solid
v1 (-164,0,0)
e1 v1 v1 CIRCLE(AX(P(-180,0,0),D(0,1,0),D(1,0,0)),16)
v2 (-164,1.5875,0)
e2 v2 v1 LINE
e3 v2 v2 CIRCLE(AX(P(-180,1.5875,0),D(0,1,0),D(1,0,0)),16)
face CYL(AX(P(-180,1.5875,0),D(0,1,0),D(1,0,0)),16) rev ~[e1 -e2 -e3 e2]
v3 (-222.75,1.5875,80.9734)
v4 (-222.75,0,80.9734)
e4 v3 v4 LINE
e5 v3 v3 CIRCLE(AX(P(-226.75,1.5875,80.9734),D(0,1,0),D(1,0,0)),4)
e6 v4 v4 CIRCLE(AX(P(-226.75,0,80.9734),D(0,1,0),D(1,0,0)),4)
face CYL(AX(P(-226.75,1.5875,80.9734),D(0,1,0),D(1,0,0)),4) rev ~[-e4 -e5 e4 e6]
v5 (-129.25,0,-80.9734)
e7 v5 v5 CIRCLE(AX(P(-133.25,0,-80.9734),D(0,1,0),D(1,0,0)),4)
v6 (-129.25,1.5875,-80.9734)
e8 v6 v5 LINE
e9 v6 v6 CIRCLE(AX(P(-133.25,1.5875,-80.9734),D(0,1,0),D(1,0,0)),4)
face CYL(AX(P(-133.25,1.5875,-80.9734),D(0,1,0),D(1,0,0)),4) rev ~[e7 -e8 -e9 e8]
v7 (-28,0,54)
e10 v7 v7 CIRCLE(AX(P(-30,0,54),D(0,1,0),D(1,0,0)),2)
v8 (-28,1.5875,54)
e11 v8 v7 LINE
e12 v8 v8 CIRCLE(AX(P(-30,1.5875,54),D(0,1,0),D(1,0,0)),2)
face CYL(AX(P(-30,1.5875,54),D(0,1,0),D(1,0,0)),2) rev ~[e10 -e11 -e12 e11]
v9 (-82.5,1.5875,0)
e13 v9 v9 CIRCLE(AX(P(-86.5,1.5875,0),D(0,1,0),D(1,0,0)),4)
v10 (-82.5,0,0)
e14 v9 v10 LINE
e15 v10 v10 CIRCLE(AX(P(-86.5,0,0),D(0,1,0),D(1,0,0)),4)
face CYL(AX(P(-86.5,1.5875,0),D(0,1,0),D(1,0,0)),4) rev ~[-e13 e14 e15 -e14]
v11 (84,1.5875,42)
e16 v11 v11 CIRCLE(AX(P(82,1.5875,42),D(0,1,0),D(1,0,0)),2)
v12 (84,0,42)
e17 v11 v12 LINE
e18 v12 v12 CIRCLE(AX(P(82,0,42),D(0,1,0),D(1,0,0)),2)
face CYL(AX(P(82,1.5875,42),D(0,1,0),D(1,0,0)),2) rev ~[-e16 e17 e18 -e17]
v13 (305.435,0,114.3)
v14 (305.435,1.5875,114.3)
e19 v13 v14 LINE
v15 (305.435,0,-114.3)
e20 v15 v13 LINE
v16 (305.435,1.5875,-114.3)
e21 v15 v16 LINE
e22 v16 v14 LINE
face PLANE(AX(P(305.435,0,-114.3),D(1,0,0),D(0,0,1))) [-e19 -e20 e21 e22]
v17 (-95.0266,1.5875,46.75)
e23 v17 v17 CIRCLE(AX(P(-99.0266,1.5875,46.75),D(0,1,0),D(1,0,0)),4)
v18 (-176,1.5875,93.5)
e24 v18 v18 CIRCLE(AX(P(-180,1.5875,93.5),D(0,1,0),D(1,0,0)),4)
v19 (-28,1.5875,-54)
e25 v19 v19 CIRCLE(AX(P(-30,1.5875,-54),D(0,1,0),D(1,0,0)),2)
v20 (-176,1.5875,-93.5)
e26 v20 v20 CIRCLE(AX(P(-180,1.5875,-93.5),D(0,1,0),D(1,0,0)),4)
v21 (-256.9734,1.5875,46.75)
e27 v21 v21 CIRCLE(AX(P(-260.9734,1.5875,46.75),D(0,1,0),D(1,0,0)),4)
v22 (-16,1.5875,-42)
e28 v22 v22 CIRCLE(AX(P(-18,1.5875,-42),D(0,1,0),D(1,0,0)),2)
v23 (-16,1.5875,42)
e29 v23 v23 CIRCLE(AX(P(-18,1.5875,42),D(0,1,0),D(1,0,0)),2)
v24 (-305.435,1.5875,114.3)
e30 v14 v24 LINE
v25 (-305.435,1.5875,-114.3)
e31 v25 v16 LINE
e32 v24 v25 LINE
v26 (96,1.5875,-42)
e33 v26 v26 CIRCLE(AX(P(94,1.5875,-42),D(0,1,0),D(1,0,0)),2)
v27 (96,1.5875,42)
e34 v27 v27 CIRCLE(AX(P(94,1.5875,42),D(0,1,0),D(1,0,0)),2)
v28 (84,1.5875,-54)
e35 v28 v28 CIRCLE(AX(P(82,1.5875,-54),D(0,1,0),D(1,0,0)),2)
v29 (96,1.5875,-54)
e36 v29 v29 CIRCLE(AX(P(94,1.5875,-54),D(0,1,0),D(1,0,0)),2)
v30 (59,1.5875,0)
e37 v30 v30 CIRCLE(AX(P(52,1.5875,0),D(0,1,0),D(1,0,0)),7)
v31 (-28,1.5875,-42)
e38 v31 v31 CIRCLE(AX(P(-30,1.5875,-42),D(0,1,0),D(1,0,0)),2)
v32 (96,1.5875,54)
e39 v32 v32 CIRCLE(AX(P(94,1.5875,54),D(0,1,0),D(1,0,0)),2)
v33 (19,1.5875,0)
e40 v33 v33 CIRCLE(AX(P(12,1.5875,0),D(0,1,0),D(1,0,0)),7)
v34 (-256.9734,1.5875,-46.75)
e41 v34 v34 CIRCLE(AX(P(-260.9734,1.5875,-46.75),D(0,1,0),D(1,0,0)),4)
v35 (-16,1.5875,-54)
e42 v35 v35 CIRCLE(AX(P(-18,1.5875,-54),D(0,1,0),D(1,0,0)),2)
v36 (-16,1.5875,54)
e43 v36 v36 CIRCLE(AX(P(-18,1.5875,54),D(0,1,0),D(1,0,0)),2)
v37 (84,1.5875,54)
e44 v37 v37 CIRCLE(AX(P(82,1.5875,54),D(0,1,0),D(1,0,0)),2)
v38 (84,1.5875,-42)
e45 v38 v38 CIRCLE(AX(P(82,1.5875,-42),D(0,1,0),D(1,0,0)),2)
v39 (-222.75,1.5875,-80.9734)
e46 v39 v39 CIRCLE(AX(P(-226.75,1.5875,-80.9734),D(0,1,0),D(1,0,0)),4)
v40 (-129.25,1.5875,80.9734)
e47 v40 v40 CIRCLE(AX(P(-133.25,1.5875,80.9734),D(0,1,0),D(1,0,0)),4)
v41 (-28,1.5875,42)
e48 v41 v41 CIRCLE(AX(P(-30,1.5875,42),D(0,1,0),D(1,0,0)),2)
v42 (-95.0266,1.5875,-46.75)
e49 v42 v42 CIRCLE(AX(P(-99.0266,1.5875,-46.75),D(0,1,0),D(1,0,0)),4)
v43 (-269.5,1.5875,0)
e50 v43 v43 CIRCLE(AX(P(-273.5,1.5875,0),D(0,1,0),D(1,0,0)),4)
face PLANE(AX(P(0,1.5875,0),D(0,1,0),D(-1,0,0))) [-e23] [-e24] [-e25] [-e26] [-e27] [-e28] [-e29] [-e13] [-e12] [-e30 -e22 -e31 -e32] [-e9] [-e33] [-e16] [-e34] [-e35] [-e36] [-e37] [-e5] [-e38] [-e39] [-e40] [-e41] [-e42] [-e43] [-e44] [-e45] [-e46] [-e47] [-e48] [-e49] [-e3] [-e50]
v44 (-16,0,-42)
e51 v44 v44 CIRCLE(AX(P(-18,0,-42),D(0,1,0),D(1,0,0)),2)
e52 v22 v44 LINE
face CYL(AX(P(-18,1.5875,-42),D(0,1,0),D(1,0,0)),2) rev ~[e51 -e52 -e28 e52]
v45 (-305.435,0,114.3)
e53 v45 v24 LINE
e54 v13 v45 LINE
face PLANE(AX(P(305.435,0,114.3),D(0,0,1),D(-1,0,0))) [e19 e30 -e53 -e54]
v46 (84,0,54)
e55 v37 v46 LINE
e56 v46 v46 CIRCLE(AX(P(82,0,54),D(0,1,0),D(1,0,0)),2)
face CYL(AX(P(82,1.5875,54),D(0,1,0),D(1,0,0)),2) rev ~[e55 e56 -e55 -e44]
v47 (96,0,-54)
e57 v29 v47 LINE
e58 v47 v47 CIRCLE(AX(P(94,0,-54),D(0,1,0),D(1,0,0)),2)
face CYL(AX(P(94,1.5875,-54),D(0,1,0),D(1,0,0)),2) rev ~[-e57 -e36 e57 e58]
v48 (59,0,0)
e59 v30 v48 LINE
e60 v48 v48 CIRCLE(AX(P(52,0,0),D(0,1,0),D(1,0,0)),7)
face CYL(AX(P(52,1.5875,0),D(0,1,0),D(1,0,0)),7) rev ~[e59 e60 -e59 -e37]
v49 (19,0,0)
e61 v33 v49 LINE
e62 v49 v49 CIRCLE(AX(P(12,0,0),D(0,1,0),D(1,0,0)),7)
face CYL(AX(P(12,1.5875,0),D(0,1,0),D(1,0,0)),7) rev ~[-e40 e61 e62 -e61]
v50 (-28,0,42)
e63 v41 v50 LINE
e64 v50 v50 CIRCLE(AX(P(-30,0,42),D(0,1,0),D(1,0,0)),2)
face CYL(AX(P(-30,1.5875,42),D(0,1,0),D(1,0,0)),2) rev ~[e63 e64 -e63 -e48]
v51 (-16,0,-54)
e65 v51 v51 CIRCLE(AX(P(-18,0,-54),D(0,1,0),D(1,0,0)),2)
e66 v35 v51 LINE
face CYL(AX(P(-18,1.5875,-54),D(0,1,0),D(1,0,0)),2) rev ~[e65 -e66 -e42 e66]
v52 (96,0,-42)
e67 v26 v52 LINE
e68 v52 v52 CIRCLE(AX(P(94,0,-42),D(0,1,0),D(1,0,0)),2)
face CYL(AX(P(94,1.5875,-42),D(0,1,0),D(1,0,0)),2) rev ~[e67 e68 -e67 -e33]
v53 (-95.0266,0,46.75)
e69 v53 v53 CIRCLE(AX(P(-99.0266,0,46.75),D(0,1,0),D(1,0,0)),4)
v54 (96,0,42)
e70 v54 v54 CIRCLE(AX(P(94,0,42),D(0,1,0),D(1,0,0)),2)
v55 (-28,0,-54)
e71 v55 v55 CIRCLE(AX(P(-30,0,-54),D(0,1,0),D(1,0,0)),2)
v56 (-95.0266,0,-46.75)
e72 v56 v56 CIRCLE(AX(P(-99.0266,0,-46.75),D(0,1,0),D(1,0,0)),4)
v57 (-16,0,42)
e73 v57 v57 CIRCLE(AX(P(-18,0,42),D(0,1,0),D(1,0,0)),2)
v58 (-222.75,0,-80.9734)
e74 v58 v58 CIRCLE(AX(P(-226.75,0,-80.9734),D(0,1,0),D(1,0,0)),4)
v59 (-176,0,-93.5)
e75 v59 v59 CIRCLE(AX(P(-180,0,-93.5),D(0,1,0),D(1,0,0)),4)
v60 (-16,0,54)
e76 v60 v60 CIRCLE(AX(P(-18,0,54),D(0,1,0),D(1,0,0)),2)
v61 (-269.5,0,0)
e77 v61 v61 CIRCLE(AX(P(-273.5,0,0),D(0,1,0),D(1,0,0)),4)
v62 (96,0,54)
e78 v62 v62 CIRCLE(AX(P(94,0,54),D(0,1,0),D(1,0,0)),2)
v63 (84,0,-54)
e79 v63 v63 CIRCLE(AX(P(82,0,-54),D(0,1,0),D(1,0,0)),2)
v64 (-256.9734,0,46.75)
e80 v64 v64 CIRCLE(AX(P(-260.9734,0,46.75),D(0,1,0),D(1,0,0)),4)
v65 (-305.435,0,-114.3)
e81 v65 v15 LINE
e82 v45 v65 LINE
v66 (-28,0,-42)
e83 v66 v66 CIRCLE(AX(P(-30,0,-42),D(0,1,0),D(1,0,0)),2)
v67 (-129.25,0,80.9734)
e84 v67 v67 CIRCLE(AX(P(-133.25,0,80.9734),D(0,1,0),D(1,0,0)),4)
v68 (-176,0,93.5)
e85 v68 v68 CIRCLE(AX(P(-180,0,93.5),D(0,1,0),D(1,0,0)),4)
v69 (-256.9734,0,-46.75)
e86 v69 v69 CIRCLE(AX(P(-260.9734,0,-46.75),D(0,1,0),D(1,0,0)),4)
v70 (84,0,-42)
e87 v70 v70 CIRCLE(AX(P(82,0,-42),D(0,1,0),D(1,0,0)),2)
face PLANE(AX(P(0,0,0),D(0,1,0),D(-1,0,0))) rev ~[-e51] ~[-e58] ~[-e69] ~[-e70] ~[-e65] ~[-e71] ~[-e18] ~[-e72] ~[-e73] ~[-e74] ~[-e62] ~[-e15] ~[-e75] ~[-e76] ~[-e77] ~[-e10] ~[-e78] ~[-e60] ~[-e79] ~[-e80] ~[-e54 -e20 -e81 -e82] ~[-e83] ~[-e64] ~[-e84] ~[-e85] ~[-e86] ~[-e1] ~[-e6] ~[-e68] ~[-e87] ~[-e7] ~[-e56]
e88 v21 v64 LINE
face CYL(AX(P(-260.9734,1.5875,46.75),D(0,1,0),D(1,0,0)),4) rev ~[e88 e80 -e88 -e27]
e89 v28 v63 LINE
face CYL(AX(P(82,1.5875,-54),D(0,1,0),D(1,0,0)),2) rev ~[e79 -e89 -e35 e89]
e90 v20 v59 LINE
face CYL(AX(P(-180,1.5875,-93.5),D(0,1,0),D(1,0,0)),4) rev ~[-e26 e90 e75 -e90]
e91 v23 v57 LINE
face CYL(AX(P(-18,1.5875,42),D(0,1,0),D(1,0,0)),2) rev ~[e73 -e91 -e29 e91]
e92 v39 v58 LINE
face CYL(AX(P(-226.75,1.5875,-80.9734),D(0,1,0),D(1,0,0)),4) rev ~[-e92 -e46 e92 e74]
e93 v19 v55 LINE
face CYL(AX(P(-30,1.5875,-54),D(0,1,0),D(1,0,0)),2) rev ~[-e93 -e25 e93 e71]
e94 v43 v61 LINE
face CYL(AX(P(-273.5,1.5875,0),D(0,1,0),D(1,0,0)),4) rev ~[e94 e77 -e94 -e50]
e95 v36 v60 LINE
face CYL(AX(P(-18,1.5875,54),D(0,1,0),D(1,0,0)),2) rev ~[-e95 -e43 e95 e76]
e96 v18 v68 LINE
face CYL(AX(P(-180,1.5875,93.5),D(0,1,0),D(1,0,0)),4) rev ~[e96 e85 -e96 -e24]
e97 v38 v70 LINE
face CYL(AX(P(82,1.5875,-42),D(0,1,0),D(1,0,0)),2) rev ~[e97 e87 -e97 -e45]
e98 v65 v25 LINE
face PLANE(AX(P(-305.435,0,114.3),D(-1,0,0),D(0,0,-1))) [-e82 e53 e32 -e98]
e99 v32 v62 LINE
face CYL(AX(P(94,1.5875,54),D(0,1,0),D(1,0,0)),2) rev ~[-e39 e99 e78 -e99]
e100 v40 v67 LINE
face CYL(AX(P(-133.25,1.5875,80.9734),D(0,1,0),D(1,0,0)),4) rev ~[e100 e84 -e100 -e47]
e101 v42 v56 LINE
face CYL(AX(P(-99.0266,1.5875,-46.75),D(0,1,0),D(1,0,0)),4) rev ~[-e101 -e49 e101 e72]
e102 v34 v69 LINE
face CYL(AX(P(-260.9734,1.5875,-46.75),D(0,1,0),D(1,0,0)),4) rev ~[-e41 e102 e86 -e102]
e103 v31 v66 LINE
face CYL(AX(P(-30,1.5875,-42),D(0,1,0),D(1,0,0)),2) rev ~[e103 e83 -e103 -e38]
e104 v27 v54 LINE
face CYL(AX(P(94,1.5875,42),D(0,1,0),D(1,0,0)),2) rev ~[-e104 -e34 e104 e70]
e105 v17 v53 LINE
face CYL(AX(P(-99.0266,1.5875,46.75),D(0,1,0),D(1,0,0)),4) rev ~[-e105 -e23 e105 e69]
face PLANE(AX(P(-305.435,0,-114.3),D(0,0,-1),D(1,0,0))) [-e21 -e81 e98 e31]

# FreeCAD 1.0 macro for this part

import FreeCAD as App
import Part
import Sketcher

V = App.Vector

doc = App.newDocument("Part")
body = doc.addObject("PartDesign::Body", "Body")

sketch1 = doc.addObject("Sketcher::SketchObject", "Sketch")
body.addObject(sketch1)
sketch1.AttachmentSupport = (doc.XZ_Plane, [""])
sketch1.MapMode = "FlatFace"
sketch1.addGeometry(Part.LineSegment(V(-305, 114, 0), V(305, 114, 0)), False)
sketch1.addGeometry(Part.LineSegment(V(305, 114, 0), V(305, -114, 0)), False)
sketch1.addGeometry(Part.LineSegment(V(305, -114, 0), V(-305, -114, 0)), False)
sketch1.addGeometry(Part.LineSegment(V(-305, -114, 0), V(-305, 114, 0)), False)
sketch1.addConstraint(Sketcher.Constraint("Coincident", 0, 2, 1, 1))
sketch1.addConstraint(Sketcher.Constraint("Coincident", 1, 2, 2, 1))
sketch1.addConstraint(Sketcher.Constraint("Coincident", 2, 2, 3, 1))
sketch1.addConstraint(Sketcher.Constraint("Coincident", 3, 2, 0, 1))
sketch1.addConstraint(Sketcher.Constraint("Horizontal", 0))
sketch1.addConstraint(Sketcher.Constraint("Vertical", 1))
sketch1.addConstraint(Sketcher.Constraint("Horizontal", 2))
sketch1.addConstraint(Sketcher.Constraint("Vertical", 3))
sketch1.addConstraint(Sketcher.Constraint("Symmetric", 0, 2, 2, 2, -1, 1))
sketch1.addConstraint(Sketcher.Constraint("DistanceY", 1, 2, 1, 1, 228.6))
sketch1.addConstraint(Sketcher.Constraint("DistanceX", 0, 1, 0, 2, 610.87))
pad1 = doc.addObject("PartDesign::Pad", "Pad")
body.addObject(pad1)
pad1.Profile = sketch1
pad1.Length = 1.5875
pad1.Reversed = True

sketch2 = doc.addObject("Sketcher::SketchObject", "Sketch001")
body.addObject(sketch2)
sketch2.AttachmentSupport = (doc.XZ_Plane, [""])
sketch2.MapMode = "FlatFace"
sketch2.AttachmentOffset = App.Placement(V(0, 0, -1.5875), App.Rotation())
sketch2.addGeometry(Part.Circle(V(-180, -93.5, 0), V(0, 0, 1), 4), False)
sketch2.addGeometry(Part.Circle(V(-226.8, -81, 0), V(0, 0, 1), 4), False)
sketch2.addGeometry(Part.Circle(V(-261, -46.8, 0), V(0, 0, 1), 4), False)
sketch2.addGeometry(Part.Circle(V(-273.5, 0, 0), V(0, 0, 1), 4), False)
sketch2.addGeometry(Part.Circle(V(-261, 46.8, 0), V(0, 0, 1), 4), False)
sketch2.addGeometry(Part.Circle(V(-226.8, 81, 0), V(0, 0, 1), 4), False)
sketch2.addGeometry(Part.Circle(V(-180, 93.5, 0), V(0, 0, 1), 4), False)
sketch2.addGeometry(Part.Circle(V(-133.2, 81, 0), V(0, 0, 1), 4), False)
sketch2.addGeometry(Part.Circle(V(-99, 46.8, 0), V(0, 0, 1), 4), False)
sketch2.addGeometry(Part.Circle(V(-86.5, 0, 0), V(0, 0, 1), 4), False)
sketch2.addGeometry(Part.Circle(V(-99, -46.8, 0), V(0, 0, 1), 4), False)
sketch2.addGeometry(Part.Circle(V(-133.2, -81, 0), V(0, 0, 1), 4), False)
sketch2.addGeometry(Part.Circle(V(-180, 0, 0), V(0, 0, 1), 16), False)
sketch2.addConstraint(Sketcher.Constraint("Equal", 0, 1))
sketch2.addConstraint(Sketcher.Constraint("Equal", 1, 2))
sketch2.addConstraint(Sketcher.Constraint("Equal", 2, 3))
sketch2.addConstraint(Sketcher.Constraint("Equal", 3, 4))
sketch2.addConstraint(Sketcher.Constraint("Equal", 4, 5))
sketch2.addConstraint(Sketcher.Constraint("Equal", 5, 6))
sketch2.addConstraint(Sketcher.Constraint("Equal", 6, 7))
sketch2.addConstraint(Sketcher.Constraint("Equal", 7, 8))
sketch2.addConstraint(Sketcher.Constraint("Equal", 8, 9))
sketch2.addConstraint(Sketcher.Constraint("Equal", 9, 10))
sketch2.addConstraint(Sketcher.Constraint("Equal", 10, 11))
sketch2.addConstraint(Sketcher.Constraint("Symmetric", 2, 3, 4, 3, -1))
sketch2.addConstraint(Sketcher.Constraint("Symmetric", 1, 3, 5, 3, -1))
sketch2.addConstraint(Sketcher.Constraint("Symmetric", 0, 3, 6, 3, -1))
sketch2.addConstraint(Sketcher.Constraint("Symmetric", 8, 3, 10, 3, -1))
sketch2.addConstraint(Sketcher.Constraint("Symmetric", 7, 3, 11, 3, -1))
sketch2.addConstraint(Sketcher.Constraint("PointOnObject", 3, 3, -1))
sketch2.addConstraint(Sketcher.Constraint("PointOnObject", 9, 3, -1))
sketch2.addConstraint(Sketcher.Constraint("PointOnObject", 12, 3, -1))
sketch2.addConstraint(Sketcher.Constraint("Horizontal", 5, 3, 7, 3))
sketch2.addConstraint(Sketcher.Constraint("Horizontal", 4, 3, 8, 3))
sketch2.addConstraint(Sketcher.Constraint("Vertical", 6, 3, 12, 3))
sketch2.addConstraint(Sketcher.Constraint("Diameter", 0, 8.0))
sketch2.addConstraint(Sketcher.Constraint("Diameter", 12, 32.0))
sketch2.addConstraint(Sketcher.Constraint("DistanceX", 0, 3, -1, 1, 180.0))
sketch2.addConstraint(Sketcher.Constraint("DistanceY", 0, 3, -1, 1, 93.5))
sketch2.addConstraint(Sketcher.Constraint("DistanceX", 3, 3, -1, 1, 273.5))
sketch2.addConstraint(Sketcher.Constraint("DistanceX", 9, 3, -1, 1, 86.5))
sketch2.addConstraint(Sketcher.Constraint("DistanceY", 2, 3, 4, 3, 93.5))
sketch2.addConstraint(Sketcher.Constraint("DistanceX", 5, 3, 7, 3, 93.5))
sketch2.addConstraint(Sketcher.Constraint("DistanceX", 1, 3, -1, 1, 226.75))
sketch2.addConstraint(Sketcher.Constraint("DistanceY", 1, 3, -1, 1, 80.9734))
sketch2.addConstraint(Sketcher.Constraint("DistanceX", 2, 3, -1, 1, 260.9734))
sketch2.addConstraint(Sketcher.Constraint("DistanceX", 8, 3, -1, 1, 99.0266))
pocket1 = doc.addObject("PartDesign::Pocket", "Pocket")
body.addObject(pocket1)
pocket1.Profile = sketch2
pocket1.Type = "ThroughAll"
pocket1.Reversed = True

sketch3 = doc.addObject("Sketcher::SketchObject", "Sketch002")
body.addObject(sketch3)
sketch3.AttachmentSupport = (doc.XZ_Plane, [""])
sketch3.MapMode = "FlatFace"
sketch3.AttachmentOffset = App.Placement(V(0, 0, -1.5875), App.Rotation())
sketch3.addGeometry(Part.Circle(V(-30, -54, 0), V(0, 0, 1), 2), False)
sketch3.addGeometry(Part.Circle(V(-30, -42, 0), V(0, 0, 1), 2), False)
sketch3.addGeometry(Part.Circle(V(-18, -42, 0), V(0, 0, 1), 2), False)
sketch3.addGeometry(Part.Circle(V(-18, -54, 0), V(0, 0, 1), 2), False)
sketch3.addGeometry(Part.Circle(V(94, -54, 0), V(0, 0, 1), 2), False)
sketch3.addGeometry(Part.Circle(V(94, -42, 0), V(0, 0, 1), 2), False)
sketch3.addGeometry(Part.Circle(V(82, -42, 0), V(0, 0, 1), 2), False)
sketch3.addGeometry(Part.Circle(V(82, -54, 0), V(0, 0, 1), 2), False)
sketch3.addGeometry(Part.Circle(V(-30, 54, 0), V(0, 0, 1), 2), False)
sketch3.addGeometry(Part.Circle(V(-30, 42, 0), V(0, 0, 1), 2), False)
sketch3.addGeometry(Part.Circle(V(-18, 42, 0), V(0, 0, 1), 2), False)
sketch3.addGeometry(Part.Circle(V(-18, 54, 0), V(0, 0, 1), 2), False)
sketch3.addGeometry(Part.Circle(V(94, 54, 0), V(0, 0, 1), 2), False)
sketch3.addGeometry(Part.Circle(V(94, 42, 0), V(0, 0, 1), 2), False)
sketch3.addGeometry(Part.Circle(V(82, 42, 0), V(0, 0, 1), 2), False)
sketch3.addGeometry(Part.Circle(V(82, 54, 0), V(0, 0, 1), 2), False)
sketch3.addGeometry(Part.Circle(V(52, 0, 0), V(0, 0, 1), 7), False)
sketch3.addGeometry(Part.Circle(V(12, 0, 0), V(0, 0, 1), 7), False)
sketch3.addConstraint(Sketcher.Constraint("Equal", 0, 1))
sketch3.addConstraint(Sketcher.Constraint("Equal", 1, 2))
sketch3.addConstraint(Sketcher.Constraint("Equal", 2, 3))
sketch3.addConstraint(Sketcher.Constraint("Equal", 3, 4))
sketch3.addConstraint(Sketcher.Constraint("Equal", 4, 5))
sketch3.addConstraint(Sketcher.Constraint("Equal", 5, 6))
sketch3.addConstraint(Sketcher.Constraint("Equal", 6, 7))
sketch3.addConstraint(Sketcher.Constraint("Equal", 7, 8))
sketch3.addConstraint(Sketcher.Constraint("Equal", 8, 9))
sketch3.addConstraint(Sketcher.Constraint("Equal", 9, 10))
sketch3.addConstraint(Sketcher.Constraint("Equal", 10, 11))
sketch3.addConstraint(Sketcher.Constraint("Equal", 11, 12))
sketch3.addConstraint(Sketcher.Constraint("Equal", 12, 13))
sketch3.addConstraint(Sketcher.Constraint("Equal", 13, 14))
sketch3.addConstraint(Sketcher.Constraint("Equal", 14, 15))
sketch3.addConstraint(Sketcher.Constraint("Equal", 16, 17))
sketch3.addConstraint(Sketcher.Constraint("Symmetric", 0, 3, 8, 3, -1))
sketch3.addConstraint(Sketcher.Constraint("Symmetric", 1, 3, 9, 3, -1))
sketch3.addConstraint(Sketcher.Constraint("Symmetric", 2, 3, 10, 3, -1))
sketch3.addConstraint(Sketcher.Constraint("Symmetric", 3, 3, 11, 3, -1))
sketch3.addConstraint(Sketcher.Constraint("Symmetric", 4, 3, 12, 3, -1))
sketch3.addConstraint(Sketcher.Constraint("Symmetric", 5, 3, 13, 3, -1))
sketch3.addConstraint(Sketcher.Constraint("Symmetric", 6, 3, 14, 3, -1))
sketch3.addConstraint(Sketcher.Constraint("Symmetric", 7, 3, 15, 3, -1))
sketch3.addConstraint(Sketcher.Constraint("PointOnObject", 16, 3, -1))
sketch3.addConstraint(Sketcher.Constraint("PointOnObject", 17, 3, -1))
sketch3.addConstraint(Sketcher.Constraint("Horizontal", 1, 3, 2, 3))
sketch3.addConstraint(Sketcher.Constraint("Horizontal", 0, 3, 3, 3))
sketch3.addConstraint(Sketcher.Constraint("Horizontal", 3, 3, 4, 3))
sketch3.addConstraint(Sketcher.Constraint("Horizontal", 2, 3, 5, 3))
sketch3.addConstraint(Sketcher.Constraint("Horizontal", 5, 3, 6, 3))
sketch3.addConstraint(Sketcher.Constraint("Horizontal", 4, 3, 7, 3))
sketch3.addConstraint(Sketcher.Constraint("Vertical", 0, 3, 1, 3))
sketch3.addConstraint(Sketcher.Constraint("Vertical", 2, 3, 3, 3))
sketch3.addConstraint(Sketcher.Constraint("Vertical", 4, 3, 5, 3))
sketch3.addConstraint(Sketcher.Constraint("Vertical", 6, 3, 7, 3))
sketch3.addConstraint(Sketcher.Constraint("Diameter", 0, 4.0))
sketch3.addConstraint(Sketcher.Constraint("Diameter", 16, 14.0))
sketch3.addConstraint(Sketcher.Constraint("DistanceX", 0, 3, -1, 1, 30.0))
sketch3.addConstraint(Sketcher.Constraint("DistanceY", 0, 3, -1, 1, 54.0))
sketch3.addConstraint(Sketcher.Constraint("DistanceY", 1, 3, -1, 1, 42.0))
sketch3.addConstraint(Sketcher.Constraint("DistanceX", 2, 3, -1, 1, 18.0))
sketch3.addConstraint(Sketcher.Constraint("DistanceX", -1, 1, 4, 3, 94.0))
sketch3.addConstraint(Sketcher.Constraint("DistanceX", -1, 1, 6, 3, 82.0))
sketch3.addConstraint(Sketcher.Constraint("DistanceX", -1, 1, 16, 3, 52.0))
sketch3.addConstraint(Sketcher.Constraint("DistanceX", -1, 1, 17, 3, 12.0))
pocket2 = doc.addObject("PartDesign::Pocket", "Pocket001")
body.addObject(pocket2)
pocket2.Profile = sketch3
pocket2.Type = "ThroughAll"
pocket2.Reversed = True

doc.recompute()
